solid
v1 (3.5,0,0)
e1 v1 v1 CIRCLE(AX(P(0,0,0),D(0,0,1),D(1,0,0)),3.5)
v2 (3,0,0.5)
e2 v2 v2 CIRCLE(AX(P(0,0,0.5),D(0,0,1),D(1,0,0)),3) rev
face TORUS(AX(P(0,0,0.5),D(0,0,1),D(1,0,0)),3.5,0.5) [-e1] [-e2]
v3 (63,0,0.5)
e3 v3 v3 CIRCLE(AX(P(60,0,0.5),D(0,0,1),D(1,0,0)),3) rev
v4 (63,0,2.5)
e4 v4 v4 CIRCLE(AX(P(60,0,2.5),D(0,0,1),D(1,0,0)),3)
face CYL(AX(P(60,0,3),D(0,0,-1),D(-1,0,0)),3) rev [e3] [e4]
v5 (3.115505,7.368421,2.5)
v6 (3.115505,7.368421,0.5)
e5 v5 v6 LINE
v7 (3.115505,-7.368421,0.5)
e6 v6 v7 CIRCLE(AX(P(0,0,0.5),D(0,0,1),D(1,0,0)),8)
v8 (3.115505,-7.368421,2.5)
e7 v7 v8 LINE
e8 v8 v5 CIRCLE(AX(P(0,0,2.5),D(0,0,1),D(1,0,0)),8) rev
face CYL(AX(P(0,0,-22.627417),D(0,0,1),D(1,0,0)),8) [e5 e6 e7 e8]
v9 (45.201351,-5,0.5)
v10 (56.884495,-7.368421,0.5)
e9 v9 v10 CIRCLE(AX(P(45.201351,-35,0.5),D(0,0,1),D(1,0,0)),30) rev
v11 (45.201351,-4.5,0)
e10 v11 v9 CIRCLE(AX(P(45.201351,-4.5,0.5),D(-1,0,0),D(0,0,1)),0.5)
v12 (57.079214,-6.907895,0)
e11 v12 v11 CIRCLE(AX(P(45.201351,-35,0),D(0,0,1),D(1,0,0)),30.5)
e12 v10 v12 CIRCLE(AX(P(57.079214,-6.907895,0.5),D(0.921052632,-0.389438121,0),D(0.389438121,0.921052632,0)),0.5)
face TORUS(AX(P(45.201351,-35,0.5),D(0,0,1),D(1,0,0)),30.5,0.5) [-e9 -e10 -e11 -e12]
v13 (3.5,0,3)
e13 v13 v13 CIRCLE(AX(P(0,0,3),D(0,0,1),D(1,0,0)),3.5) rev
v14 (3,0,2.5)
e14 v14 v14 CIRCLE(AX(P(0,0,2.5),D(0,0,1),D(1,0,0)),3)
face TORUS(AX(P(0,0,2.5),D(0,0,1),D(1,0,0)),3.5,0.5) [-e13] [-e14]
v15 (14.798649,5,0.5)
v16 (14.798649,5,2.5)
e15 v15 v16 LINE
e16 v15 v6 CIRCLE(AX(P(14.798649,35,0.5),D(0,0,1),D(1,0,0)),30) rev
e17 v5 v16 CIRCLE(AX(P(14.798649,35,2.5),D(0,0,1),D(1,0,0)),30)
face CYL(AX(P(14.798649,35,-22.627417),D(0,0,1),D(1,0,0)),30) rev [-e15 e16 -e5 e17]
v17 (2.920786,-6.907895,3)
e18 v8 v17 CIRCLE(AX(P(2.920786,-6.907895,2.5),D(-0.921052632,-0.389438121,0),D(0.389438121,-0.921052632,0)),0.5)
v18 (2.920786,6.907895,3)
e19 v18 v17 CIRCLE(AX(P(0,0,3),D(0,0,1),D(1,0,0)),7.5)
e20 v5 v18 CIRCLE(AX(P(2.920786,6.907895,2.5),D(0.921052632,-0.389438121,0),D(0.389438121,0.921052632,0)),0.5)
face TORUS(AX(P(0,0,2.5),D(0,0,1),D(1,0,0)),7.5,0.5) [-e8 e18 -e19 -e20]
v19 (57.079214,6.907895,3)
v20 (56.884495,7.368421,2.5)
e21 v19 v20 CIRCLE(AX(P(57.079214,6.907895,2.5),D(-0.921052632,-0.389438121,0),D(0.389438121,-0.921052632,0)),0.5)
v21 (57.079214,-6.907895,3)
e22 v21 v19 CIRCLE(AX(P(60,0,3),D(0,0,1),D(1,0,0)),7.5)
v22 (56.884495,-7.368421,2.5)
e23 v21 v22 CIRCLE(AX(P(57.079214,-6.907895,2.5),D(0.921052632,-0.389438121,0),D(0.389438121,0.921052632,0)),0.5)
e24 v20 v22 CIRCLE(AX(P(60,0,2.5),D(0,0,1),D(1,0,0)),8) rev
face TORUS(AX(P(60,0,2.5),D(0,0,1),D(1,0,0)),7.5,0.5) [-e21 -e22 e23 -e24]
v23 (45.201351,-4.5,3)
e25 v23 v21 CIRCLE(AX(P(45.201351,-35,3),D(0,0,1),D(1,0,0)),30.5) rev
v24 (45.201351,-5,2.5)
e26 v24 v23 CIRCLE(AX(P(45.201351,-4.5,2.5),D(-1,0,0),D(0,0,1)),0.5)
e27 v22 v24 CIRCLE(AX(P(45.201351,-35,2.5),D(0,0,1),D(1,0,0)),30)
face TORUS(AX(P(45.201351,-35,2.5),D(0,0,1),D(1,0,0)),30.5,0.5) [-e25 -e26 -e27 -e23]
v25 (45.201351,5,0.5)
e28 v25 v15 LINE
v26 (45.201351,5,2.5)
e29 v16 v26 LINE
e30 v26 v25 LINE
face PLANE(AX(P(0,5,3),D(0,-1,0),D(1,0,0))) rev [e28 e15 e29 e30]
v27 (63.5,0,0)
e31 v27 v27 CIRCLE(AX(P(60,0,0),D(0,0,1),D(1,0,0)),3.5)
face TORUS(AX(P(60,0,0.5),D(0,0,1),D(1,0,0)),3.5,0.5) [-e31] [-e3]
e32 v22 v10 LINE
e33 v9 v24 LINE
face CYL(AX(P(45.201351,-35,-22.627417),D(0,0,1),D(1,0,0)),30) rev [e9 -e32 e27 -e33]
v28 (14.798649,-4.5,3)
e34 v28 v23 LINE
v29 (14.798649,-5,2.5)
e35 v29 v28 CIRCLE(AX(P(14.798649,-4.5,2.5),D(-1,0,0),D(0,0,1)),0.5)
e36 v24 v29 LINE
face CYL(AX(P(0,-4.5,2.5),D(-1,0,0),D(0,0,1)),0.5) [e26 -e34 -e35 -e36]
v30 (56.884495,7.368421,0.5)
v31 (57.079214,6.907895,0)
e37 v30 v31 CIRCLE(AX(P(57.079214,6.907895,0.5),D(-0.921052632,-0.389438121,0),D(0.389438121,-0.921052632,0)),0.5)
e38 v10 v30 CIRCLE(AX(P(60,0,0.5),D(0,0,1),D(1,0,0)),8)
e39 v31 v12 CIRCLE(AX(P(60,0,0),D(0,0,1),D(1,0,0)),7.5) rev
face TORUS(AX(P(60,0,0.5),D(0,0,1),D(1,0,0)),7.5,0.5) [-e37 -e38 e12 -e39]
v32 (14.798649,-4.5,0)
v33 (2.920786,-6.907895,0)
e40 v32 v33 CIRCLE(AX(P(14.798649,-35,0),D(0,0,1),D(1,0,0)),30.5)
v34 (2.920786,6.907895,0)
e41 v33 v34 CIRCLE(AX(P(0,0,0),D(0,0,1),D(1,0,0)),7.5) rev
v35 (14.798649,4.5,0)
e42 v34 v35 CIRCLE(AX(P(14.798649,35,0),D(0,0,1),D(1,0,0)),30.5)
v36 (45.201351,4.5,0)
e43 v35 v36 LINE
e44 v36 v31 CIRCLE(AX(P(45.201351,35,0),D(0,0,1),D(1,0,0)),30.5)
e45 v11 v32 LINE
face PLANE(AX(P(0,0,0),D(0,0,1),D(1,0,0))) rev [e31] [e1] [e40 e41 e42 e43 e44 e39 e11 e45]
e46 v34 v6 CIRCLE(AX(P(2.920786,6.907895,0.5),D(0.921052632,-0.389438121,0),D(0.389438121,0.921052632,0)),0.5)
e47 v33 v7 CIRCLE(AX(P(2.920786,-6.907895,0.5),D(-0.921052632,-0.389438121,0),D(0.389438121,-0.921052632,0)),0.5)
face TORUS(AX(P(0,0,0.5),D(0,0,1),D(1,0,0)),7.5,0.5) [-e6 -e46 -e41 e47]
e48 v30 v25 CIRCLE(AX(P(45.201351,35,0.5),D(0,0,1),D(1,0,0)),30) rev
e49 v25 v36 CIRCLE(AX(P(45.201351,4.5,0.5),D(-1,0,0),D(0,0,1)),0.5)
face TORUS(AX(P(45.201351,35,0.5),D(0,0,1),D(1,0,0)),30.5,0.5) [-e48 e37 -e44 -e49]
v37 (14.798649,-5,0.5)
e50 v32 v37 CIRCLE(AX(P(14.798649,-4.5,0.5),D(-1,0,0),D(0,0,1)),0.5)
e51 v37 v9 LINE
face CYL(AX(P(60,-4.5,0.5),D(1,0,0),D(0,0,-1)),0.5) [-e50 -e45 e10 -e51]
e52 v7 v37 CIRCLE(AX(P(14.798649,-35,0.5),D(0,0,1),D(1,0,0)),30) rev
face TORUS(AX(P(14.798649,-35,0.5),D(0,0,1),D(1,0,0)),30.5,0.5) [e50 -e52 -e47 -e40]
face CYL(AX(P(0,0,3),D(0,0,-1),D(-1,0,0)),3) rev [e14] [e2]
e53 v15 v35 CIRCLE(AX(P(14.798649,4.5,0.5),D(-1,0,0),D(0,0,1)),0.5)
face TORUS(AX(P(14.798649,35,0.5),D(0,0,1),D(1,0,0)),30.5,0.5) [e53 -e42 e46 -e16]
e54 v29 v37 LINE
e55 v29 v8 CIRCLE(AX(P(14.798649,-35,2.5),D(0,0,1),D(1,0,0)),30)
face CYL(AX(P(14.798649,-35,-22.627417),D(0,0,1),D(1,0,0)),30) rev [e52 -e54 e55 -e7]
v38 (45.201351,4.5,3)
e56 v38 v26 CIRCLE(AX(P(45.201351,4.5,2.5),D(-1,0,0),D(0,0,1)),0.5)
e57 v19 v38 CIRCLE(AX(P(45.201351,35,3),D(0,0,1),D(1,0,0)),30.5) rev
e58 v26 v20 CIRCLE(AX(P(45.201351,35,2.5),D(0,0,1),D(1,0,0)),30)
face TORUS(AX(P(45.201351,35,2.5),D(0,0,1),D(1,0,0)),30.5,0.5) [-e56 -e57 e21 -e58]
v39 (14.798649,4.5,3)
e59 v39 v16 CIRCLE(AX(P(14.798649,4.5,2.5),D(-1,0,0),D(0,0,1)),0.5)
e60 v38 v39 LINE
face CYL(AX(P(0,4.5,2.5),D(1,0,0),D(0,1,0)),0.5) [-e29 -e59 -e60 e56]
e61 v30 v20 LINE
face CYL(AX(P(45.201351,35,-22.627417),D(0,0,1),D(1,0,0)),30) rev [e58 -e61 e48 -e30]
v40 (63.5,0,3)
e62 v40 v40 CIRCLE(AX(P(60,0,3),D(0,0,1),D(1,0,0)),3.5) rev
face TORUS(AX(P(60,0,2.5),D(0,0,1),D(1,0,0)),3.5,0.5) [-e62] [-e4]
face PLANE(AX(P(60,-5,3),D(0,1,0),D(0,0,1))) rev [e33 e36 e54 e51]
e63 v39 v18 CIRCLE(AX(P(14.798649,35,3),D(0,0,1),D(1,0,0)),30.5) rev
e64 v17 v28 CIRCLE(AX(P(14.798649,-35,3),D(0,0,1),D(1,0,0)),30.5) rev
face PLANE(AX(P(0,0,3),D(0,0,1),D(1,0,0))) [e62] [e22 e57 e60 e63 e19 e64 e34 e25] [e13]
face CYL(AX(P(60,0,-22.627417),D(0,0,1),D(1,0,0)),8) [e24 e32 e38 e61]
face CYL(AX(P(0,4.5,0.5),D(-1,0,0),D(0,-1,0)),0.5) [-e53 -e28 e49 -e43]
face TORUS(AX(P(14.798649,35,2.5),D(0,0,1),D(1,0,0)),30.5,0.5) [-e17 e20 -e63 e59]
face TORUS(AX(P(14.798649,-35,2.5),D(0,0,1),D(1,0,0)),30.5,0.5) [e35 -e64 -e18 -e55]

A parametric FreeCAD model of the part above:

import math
import FreeCAD as App
import Part
import Sketcher


def edges_at(feature, points):
    """Names of the edges that pass closest to the given points."""
    edges = feature.Shape.Edges
    near = lambda p: min(range(len(edges)), key=lambda i: edges[i].distToShape(Part.Vertex(*p))[0])
    return sorted({f"Edge{near(p) + 1}" for p in points})

doc = App.newDocument("Part")
body = doc.addObject("PartDesign::Body", "Body")

sketch1 = body.newObject("Sketcher::SketchObject", "Sketch")
sketch1.AttachmentSupport = (doc.getObject("XY_Plane"), [""])
sketch1.MapMode = "FlatFace"
sketch1.addGeometry(Part.LineSegment(App.Vector(60, 5, 0), App.Vector(0, 5, 0)), False)
sketch1.addGeometry(Part.ArcOfCircle(Part.Circle(App.Vector(0, 0, 0), App.Vector(0, 0, 1), 5), math.radians(90), math.radians(270)), False)
sketch1.addGeometry(Part.LineSegment(App.Vector(0, -5, 0), App.Vector(60, -5, 0)), False)
sketch1.addGeometry(Part.ArcOfCircle(Part.Circle(App.Vector(60, 0, 0), App.Vector(0, 0, 1), 5), math.radians(-90), math.radians(90)), False)
sketch1.addGeometry(Part.Circle(App.Vector(60, 0, 0), App.Vector(0, 0, 1), 3), False)
sketch1.addGeometry(Part.Circle(App.Vector(0, 0, 0), App.Vector(0, 0, 1), 3), False)
sketch1.addConstraint(Sketcher.Constraint("Tangent", 0, 2, 1, 1))
sketch1.addConstraint(Sketcher.Constraint("Tangent", 1, 2, 2, 1))
sketch1.addConstraint(Sketcher.Constraint("Tangent", 2, 2, 3, 1))
sketch1.addConstraint(Sketcher.Constraint("Tangent", 3, 2, 0, 1))
sketch1.addConstraint(Sketcher.Constraint("Horizontal", 0))
sketch1.addConstraint(Sketcher.Constraint("Horizontal", 2))
sketch1.addConstraint(Sketcher.Constraint("Coincident", 1, 3, -1, 1))
sketch1.addConstraint(Sketcher.Constraint("Coincident", 5, 3, -1, 1))
sketch1.addConstraint(Sketcher.Constraint("Coincident", 4, 3, 3, 3))
sketch1.addConstraint(Sketcher.Constraint("Equal", 4, 5))
sketch1.addConstraint(Sketcher.Constraint("Diameter", 4, 6.0))
sketch1.addConstraint(Sketcher.Constraint("Radius", 1, 5.0))
sketch1.addConstraint(Sketcher.Constraint("DistanceX", 0, 2, 0, 1, 60.0))
pad1 = body.newObject("PartDesign::Pad", "Pad")
pad1.Profile = sketch1
pad1.Length = 3

sketch2 = body.newObject("Sketcher::SketchObject", "Sketch001")
sketch2.AttachmentSupport = (doc.getObject("XY_Plane"), [""])
sketch2.MapMode = "FlatFace"
sketch2.addGeometry(Part.Circle(App.Vector(0, 0, 0), App.Vector(0, 0, 1), 8), False)
sketch2.addGeometry(Part.Circle(App.Vector(0, 0, 0), App.Vector(0, 0, 1), 3), False)
sketch2.addGeometry(Part.Circle(App.Vector(60, 0, 0), App.Vector(0, 0, 1), 8), False)
sketch2.addGeometry(Part.Circle(App.Vector(60, 0, 0), App.Vector(0, 0, 1), 3), False)
sketch2.addConstraint(Sketcher.Constraint("Coincident", 0, 3, -1, 1))
sketch2.addConstraint(Sketcher.Constraint("Coincident", 1, 3, -1, 1))
sketch2.addConstraint(Sketcher.Constraint("Coincident", 3, 3, 2, 3))
sketch2.addConstraint(Sketcher.Constraint("Equal", 0, 2))
sketch2.addConstraint(Sketcher.Constraint("Equal", 1, 3))
sketch2.addConstraint(Sketcher.Constraint("PointOnObject", 2, 3, -1))
sketch2.addConstraint(Sketcher.Constraint("Diameter", 0, 16.0))
sketch2.addConstraint(Sketcher.Constraint("Diameter", 1, 6.0))
sketch2.addConstraint(Sketcher.Constraint("DistanceX", -1, 1, 2, 3, 60.0))
pad2 = body.newObject("PartDesign::Pad", "Pad001")
pad2.Profile = sketch2
pad2.Length = 3
doc.recompute()

fillet = body.newObject("PartDesign::Fillet", "Fillet")
fillet.Base = (pad2, edges_at(pad2, [
    (6.245, 5, 1.5),
    (6.245, -5, 1.5),
    (53.755, 5, 1.5),
    (53.755, -5, 1.5),
]))
fillet.Radius = 30
doc.recompute()

fillet2 = body.newObject("PartDesign::Fillet", "Fillet001")
fillet2.Base = (fillet, edges_at(fillet, [
    (-3, 0, 0),
    (-3, 0, 3),
    (57, 0, 0),
    (57, 0, 3),
    (30, -5, 0),
    (30, -5, 3),
    (-8, 0, 3),
    (-8, 0, 0),
    (68, 0, 0),
    (68, 0, 3),
    (30, 5, 3),
    (30, 5, 0),
    (8.838, -5.598, 0),
    (8.838, -5.598, 3),
    (51.162, -5.598, 3),
    (51.162, -5.598, 0),
    (51.162, 5.598, 0),
    (51.162, 5.598, 3),
    (8.838, 5.598, 3),
    (8.838, 5.598, 0),
]))
fillet2.Radius = 0.5

doc.recompute()
